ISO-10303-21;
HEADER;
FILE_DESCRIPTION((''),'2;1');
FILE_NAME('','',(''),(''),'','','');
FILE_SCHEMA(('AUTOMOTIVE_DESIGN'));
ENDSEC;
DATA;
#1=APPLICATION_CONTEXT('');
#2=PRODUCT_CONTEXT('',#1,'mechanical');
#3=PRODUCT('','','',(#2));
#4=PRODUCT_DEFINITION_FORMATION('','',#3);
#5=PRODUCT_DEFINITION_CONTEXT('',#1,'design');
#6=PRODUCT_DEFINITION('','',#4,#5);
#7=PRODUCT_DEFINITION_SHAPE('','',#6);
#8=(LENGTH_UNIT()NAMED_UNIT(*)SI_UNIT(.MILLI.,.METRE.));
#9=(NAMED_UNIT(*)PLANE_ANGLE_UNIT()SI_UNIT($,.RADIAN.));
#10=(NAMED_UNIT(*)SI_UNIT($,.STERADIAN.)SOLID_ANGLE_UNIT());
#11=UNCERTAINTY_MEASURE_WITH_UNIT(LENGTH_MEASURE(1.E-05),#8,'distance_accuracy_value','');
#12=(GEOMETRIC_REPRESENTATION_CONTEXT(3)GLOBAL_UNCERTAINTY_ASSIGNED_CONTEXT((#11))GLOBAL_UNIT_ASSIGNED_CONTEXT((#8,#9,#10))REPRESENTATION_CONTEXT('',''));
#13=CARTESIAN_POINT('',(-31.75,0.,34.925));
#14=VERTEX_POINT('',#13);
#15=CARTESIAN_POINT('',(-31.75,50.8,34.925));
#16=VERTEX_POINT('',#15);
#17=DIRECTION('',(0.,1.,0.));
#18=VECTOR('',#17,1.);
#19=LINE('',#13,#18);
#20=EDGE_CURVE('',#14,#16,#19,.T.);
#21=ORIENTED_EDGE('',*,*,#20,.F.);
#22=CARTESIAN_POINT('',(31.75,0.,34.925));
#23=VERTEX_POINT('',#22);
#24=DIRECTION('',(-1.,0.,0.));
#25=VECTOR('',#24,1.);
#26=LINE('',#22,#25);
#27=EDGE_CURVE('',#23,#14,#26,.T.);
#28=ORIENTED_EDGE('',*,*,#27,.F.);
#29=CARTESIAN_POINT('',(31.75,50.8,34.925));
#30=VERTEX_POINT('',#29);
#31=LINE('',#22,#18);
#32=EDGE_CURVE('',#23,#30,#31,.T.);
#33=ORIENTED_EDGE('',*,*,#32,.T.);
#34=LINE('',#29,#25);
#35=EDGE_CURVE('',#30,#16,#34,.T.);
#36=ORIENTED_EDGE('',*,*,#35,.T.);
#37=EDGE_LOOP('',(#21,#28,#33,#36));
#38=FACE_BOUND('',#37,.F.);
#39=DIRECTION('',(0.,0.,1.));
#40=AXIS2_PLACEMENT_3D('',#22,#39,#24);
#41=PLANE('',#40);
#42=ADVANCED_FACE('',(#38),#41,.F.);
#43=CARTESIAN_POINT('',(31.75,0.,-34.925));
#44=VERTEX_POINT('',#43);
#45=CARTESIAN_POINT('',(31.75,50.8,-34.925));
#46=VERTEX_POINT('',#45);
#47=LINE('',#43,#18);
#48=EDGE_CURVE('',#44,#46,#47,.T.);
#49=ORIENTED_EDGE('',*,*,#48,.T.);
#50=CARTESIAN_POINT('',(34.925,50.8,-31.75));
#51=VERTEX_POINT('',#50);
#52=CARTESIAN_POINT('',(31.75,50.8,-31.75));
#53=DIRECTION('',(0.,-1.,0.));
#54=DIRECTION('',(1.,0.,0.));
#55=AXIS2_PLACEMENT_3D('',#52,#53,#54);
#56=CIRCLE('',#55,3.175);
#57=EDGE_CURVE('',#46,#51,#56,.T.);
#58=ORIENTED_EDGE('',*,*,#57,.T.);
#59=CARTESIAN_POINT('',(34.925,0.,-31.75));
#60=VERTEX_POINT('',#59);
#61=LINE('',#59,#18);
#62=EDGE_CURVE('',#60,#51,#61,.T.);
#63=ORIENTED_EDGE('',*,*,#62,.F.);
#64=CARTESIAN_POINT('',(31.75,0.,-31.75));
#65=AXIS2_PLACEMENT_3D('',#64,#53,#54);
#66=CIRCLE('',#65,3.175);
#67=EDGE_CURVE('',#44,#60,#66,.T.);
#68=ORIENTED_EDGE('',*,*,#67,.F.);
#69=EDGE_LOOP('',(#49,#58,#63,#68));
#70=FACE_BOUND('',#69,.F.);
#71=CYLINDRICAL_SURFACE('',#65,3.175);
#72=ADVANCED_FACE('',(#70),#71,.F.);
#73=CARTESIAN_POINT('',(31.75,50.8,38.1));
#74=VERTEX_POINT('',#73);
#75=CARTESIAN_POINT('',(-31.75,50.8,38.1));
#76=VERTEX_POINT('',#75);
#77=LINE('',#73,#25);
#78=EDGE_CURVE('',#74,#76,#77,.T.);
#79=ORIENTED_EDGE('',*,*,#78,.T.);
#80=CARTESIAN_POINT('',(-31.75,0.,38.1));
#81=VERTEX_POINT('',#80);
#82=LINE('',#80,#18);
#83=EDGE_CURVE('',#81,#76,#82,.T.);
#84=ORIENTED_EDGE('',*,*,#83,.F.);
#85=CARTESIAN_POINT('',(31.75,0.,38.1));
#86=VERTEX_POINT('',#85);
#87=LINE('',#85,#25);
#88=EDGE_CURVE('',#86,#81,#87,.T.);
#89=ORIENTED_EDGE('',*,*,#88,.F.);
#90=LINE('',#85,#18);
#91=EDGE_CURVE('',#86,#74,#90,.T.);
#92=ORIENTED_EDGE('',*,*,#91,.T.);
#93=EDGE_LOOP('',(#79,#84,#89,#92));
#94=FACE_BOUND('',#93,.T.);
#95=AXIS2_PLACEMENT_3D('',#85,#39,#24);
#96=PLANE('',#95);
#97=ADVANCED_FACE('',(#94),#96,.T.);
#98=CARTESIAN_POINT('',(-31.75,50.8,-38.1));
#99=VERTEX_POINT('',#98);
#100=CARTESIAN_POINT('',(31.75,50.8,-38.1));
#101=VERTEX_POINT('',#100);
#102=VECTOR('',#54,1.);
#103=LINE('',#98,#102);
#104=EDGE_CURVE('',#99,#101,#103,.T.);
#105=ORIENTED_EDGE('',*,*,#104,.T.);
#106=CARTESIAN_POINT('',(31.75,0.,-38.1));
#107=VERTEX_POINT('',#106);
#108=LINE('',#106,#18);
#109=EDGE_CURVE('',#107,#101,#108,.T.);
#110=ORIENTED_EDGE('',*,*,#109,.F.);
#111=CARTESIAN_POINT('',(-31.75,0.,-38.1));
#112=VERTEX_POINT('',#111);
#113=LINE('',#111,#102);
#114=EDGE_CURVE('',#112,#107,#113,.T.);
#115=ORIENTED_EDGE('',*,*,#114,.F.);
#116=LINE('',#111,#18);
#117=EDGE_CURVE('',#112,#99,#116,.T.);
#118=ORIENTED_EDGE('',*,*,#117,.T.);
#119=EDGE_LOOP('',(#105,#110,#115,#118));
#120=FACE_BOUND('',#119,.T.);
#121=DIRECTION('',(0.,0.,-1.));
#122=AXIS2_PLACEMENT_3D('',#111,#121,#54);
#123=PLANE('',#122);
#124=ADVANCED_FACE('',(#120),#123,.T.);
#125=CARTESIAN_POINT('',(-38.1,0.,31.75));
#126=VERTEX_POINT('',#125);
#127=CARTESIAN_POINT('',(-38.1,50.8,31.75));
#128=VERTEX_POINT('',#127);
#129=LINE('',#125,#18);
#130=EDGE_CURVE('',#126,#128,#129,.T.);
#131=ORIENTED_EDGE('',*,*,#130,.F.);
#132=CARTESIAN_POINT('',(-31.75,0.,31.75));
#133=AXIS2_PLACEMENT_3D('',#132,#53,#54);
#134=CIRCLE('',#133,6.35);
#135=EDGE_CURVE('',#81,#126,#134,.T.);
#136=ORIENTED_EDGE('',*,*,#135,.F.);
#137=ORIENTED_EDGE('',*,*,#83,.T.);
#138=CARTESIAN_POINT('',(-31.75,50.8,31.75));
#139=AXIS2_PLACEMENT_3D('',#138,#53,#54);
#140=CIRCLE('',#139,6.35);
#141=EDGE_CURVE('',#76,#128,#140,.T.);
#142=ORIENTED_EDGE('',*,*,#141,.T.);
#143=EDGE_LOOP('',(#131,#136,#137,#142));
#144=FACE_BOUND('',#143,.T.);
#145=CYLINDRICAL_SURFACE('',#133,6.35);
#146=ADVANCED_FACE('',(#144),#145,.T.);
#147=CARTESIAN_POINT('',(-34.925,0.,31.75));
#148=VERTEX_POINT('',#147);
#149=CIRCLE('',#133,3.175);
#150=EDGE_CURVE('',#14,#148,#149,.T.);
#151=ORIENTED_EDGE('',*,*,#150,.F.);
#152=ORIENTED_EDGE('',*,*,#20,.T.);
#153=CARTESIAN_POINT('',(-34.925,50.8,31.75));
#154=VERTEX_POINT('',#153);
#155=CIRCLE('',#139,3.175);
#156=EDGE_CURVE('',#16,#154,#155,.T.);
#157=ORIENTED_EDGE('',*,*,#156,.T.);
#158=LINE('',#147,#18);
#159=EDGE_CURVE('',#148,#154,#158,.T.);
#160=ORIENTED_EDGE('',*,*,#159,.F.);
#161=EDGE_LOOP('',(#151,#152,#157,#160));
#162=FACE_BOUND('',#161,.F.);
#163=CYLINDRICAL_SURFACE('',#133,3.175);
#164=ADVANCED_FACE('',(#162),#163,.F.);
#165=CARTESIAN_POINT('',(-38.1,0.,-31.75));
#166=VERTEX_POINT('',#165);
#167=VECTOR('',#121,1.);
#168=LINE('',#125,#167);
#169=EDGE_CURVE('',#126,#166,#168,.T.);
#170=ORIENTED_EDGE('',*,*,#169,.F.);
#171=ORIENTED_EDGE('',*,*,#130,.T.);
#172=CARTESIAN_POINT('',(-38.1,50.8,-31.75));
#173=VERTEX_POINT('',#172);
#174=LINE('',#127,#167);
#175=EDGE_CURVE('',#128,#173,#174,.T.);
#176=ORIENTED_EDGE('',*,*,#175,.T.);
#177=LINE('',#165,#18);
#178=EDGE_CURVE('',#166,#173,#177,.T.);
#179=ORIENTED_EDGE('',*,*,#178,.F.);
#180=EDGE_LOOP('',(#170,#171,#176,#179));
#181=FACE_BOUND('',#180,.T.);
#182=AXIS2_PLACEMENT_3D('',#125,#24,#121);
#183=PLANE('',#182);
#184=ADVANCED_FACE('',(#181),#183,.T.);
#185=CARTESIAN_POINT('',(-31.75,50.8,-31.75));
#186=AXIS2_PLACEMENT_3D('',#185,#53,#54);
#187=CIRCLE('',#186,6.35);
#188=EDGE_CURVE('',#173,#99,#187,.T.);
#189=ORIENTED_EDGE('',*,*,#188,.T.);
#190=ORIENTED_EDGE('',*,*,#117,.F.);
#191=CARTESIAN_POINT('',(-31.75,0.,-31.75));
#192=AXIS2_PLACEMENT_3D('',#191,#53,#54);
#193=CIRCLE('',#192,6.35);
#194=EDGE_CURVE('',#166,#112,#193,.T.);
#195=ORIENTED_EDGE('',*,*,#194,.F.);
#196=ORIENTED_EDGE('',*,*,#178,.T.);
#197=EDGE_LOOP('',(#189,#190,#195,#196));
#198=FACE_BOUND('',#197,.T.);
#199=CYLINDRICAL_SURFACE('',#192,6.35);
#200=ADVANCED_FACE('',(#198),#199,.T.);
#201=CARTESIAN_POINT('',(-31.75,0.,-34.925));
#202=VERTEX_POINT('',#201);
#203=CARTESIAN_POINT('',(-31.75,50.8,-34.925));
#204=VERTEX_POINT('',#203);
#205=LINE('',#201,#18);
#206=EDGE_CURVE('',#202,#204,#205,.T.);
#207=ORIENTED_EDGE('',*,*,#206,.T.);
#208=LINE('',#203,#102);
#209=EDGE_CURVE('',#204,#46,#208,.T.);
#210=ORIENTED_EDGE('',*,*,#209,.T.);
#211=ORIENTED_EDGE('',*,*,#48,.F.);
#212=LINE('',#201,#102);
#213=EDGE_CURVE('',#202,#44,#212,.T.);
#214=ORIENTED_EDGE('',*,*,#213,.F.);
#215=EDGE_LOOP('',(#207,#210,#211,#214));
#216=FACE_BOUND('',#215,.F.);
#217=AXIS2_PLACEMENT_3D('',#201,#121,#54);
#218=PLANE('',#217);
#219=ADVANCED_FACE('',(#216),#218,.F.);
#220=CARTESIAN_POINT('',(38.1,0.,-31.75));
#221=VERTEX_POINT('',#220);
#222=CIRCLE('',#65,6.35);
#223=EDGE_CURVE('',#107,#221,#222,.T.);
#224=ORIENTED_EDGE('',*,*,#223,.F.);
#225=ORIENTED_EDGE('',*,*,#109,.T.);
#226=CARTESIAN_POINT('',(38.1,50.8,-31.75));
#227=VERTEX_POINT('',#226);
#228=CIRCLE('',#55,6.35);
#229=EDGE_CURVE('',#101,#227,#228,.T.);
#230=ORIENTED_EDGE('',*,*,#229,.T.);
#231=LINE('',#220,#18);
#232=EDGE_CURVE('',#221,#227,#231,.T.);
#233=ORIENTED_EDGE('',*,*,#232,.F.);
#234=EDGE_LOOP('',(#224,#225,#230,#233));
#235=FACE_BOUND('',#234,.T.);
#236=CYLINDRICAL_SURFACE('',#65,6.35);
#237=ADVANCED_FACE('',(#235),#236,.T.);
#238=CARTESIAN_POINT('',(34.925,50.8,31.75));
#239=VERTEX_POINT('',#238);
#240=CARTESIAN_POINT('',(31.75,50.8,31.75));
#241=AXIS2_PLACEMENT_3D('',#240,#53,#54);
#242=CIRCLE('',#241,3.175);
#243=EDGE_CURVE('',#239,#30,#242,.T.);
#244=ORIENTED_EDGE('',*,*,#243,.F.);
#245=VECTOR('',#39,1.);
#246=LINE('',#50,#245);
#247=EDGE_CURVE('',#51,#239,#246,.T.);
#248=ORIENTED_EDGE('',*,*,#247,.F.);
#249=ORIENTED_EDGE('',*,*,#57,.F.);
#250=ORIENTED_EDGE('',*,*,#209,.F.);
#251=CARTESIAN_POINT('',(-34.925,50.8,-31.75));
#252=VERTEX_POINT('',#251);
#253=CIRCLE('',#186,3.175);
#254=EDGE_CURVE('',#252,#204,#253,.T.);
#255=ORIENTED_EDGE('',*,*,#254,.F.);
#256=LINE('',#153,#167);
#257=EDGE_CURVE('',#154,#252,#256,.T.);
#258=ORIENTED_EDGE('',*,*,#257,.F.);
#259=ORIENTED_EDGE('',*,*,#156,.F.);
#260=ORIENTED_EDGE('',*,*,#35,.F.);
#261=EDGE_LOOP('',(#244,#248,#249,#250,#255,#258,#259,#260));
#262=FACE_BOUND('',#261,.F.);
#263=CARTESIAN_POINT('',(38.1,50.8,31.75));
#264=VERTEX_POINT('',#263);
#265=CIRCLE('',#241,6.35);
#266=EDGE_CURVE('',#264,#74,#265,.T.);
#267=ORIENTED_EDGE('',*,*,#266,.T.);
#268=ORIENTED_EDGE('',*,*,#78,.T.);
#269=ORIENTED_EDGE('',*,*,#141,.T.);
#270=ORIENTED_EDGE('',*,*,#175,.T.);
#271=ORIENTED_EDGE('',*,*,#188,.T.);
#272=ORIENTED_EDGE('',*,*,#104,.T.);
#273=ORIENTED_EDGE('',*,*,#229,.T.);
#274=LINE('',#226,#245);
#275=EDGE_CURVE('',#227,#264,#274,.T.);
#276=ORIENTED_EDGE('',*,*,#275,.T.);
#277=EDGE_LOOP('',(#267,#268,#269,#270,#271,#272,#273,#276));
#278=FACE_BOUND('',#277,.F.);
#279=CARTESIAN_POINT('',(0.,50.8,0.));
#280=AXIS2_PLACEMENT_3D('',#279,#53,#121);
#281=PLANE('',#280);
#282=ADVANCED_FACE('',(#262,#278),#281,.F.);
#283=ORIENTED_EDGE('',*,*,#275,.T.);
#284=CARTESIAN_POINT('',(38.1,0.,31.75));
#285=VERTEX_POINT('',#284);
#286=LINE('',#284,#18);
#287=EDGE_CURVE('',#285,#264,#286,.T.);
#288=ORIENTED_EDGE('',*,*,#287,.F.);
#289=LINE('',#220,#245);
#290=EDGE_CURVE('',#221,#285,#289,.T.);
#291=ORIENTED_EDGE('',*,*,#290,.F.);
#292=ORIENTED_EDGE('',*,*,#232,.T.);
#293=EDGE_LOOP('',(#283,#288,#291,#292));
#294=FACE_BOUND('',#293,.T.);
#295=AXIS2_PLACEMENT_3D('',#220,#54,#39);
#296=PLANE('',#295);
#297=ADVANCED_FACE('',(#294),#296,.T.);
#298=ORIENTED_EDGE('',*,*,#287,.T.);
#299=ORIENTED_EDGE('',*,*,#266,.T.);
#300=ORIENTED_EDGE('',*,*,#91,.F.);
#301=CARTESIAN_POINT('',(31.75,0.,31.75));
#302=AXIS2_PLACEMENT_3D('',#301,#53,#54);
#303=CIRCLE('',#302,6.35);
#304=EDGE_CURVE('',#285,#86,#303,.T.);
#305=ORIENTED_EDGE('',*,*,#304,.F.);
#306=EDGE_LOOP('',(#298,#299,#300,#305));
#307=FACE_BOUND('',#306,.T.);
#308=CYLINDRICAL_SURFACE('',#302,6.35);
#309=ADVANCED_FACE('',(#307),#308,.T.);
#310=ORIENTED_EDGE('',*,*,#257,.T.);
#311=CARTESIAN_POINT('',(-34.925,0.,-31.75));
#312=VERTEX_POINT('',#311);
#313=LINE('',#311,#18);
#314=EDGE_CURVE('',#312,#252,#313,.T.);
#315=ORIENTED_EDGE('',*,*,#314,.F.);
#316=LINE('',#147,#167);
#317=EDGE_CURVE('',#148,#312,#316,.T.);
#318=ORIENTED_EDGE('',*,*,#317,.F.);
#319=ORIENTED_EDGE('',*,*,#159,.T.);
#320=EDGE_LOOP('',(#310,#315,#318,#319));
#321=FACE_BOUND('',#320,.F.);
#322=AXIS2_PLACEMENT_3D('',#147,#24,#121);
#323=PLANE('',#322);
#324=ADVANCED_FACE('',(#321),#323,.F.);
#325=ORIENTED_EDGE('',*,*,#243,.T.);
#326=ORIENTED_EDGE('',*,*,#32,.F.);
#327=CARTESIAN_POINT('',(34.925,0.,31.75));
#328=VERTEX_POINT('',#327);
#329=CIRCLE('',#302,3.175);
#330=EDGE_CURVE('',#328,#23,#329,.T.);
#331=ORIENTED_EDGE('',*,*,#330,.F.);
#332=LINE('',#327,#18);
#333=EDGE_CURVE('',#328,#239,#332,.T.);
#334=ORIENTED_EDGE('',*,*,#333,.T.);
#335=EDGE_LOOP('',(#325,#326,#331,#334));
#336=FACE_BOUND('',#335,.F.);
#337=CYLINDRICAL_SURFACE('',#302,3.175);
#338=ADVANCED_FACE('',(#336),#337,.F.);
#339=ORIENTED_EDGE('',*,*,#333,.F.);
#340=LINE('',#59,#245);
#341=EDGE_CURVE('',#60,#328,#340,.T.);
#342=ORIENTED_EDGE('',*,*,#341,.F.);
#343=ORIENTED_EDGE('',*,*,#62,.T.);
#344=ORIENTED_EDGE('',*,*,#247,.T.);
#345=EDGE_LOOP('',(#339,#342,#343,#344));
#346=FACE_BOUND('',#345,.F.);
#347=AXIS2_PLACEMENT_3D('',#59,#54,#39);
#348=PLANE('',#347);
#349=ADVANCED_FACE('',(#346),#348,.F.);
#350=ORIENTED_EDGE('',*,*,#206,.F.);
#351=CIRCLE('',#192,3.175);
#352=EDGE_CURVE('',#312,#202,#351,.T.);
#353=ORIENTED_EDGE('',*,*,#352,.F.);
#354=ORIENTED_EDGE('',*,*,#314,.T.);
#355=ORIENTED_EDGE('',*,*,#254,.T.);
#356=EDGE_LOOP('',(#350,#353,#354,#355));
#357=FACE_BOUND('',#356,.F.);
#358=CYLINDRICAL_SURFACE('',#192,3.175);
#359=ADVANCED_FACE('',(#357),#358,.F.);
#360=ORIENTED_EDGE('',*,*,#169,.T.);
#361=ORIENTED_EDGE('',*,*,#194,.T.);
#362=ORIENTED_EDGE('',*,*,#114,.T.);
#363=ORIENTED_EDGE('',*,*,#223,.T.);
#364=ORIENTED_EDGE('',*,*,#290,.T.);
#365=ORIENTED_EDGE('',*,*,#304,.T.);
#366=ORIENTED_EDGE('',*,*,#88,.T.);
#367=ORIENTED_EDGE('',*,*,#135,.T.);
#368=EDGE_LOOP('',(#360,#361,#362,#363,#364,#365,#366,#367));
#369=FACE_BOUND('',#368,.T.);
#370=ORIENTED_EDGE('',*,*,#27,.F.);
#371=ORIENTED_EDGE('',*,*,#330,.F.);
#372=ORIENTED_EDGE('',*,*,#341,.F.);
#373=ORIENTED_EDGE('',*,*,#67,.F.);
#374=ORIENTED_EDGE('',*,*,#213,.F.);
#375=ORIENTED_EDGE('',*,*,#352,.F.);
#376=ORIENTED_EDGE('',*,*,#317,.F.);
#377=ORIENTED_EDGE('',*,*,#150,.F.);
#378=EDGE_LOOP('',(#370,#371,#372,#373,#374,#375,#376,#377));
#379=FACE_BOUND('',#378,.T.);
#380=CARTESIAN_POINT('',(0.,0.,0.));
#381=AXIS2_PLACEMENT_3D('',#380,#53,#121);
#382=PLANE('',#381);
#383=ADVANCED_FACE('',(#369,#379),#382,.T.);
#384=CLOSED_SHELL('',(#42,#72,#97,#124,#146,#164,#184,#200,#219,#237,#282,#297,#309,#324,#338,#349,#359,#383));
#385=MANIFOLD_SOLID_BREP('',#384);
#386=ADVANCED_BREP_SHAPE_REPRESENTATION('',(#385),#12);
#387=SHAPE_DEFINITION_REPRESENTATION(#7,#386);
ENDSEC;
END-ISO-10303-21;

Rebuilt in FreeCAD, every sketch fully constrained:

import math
import FreeCAD as App
import Part
import Sketcher
from FreeCAD import Vector
Q = App.Units.Quantity

doc = App.newDocument("Part")
body = doc.addObject("PartDesign::Body", "Body")

# Sketch on XZ plane
sketch1 = body.newObject("Sketcher::SketchObject", "Sketch")
sketch1.AttachmentSupport = (doc.getObject("XZ_Plane"), [""])
sketch1.MapMode = "FlatFace"
sketch1.addGeometry(Part.LineSegment(Vector(-38.1, 31.8, 0), Vector(-38.1, -31.8, 0)), False)
sketch1.addGeometry(Part.ArcOfCircle(Part.Circle(Vector(-31.8, -31.8, 0), Vector(0, 0, 1), 6.4), math.radians(180), math.radians(270)), False)
sketch1.addGeometry(Part.LineSegment(Vector(-31.8, -38.1, 0), Vector(31.8, -38.1, 0)), False)
sketch1.addGeometry(Part.ArcOfCircle(Part.Circle(Vector(31.8, -31.8, 0), Vector(0, 0, 1), 6.4), math.radians(-90), math.radians(0)), False)
sketch1.addGeometry(Part.LineSegment(Vector(38.1, -31.8, 0), Vector(38.1, 31.8, 0)), False)
sketch1.addGeometry(Part.ArcOfCircle(Part.Circle(Vector(31.8, 31.8, 0), Vector(0, 0, 1), 6.4), math.radians(0), math.radians(90)), False)
sketch1.addGeometry(Part.LineSegment(Vector(31.8, 38.1, 0), Vector(-31.8, 38.1, 0)), False)
sketch1.addGeometry(Part.ArcOfCircle(Part.Circle(Vector(-31.8, 31.8, 0), Vector(0, 0, 1), 6.4), math.radians(90), math.radians(180)), False)
sketch1.addGeometry(Part.LineSegment(Vector(-34.9, -31.8, 0), Vector(-34.9, 31.8, 0)), False)
sketch1.addGeometry(Part.ArcOfCircle(Part.Circle(Vector(-31.8, 31.8, 0), Vector(0, 0, 1), 3.2), math.radians(90), math.radians(180)), False)
sketch1.addGeometry(Part.LineSegment(Vector(-31.8, 34.9, 0), Vector(31.8, 34.9, 0)), False)
sketch1.addGeometry(Part.ArcOfCircle(Part.Circle(Vector(31.8, 31.8, 0), Vector(0, 0, 1), 3.2), math.radians(0), math.radians(90)), False)
sketch1.addGeometry(Part.LineSegment(Vector(34.9, 31.8, 0), Vector(34.9, -31.8, 0)), False)
sketch1.addGeometry(Part.ArcOfCircle(Part.Circle(Vector(31.8, -31.8, 0), Vector(0, 0, 1), 3.2), math.radians(-90), math.radians(0)), False)
sketch1.addGeometry(Part.LineSegment(Vector(31.8, -34.9, 0), Vector(-31.8, -34.9, 0)), False)
sketch1.addGeometry(Part.ArcOfCircle(Part.Circle(Vector(-31.8, -31.8, 0), Vector(0, 0, 1), 3.2), math.radians(180), math.radians(270)), False)
sketch1.addConstraint(Sketcher.Constraint("Tangent", 0, 2, 1, 1))
sketch1.addConstraint(Sketcher.Constraint("Tangent", 1, 2, 2, 1))
sketch1.addConstraint(Sketcher.Constraint("Tangent", 2, 2, 3, 1))
sketch1.addConstraint(Sketcher.Constraint("Tangent", 3, 2, 4, 1))
sketch1.addConstraint(Sketcher.Constraint("Tangent", 4, 2, 5, 1))
sketch1.addConstraint(Sketcher.Constraint("Tangent", 5, 2, 6, 1))
sketch1.addConstraint(Sketcher.Constraint("Tangent", 6, 2, 7, 1))
sketch1.addConstraint(Sketcher.Constraint("Tangent", 7, 2, 0, 1))
sketch1.addConstraint(Sketcher.Constraint("Tangent", 8, 2, 9, 2))
sketch1.addConstraint(Sketcher.Constraint("Tangent", 9, 1, 10, 1))
sketch1.addConstraint(Sketcher.Constraint("Tangent", 10, 2, 11, 2))
sketch1.addConstraint(Sketcher.Constraint("Tangent", 11, 1, 12, 1))
sketch1.addConstraint(Sketcher.Constraint("Tangent", 12, 2, 13, 2))
sketch1.addConstraint(Sketcher.Constraint("Tangent", 13, 1, 14, 1))
sketch1.addConstraint(Sketcher.Constraint("Tangent", 14, 2, 15, 2))
sketch1.addConstraint(Sketcher.Constraint("Tangent", 15, 1, 8, 1))
sketch1.addConstraint(Sketcher.Constraint("Vertical", 0))
sketch1.addConstraint(Sketcher.Constraint("Horizontal", 2))
sketch1.addConstraint(Sketcher.Constraint("Vertical", 4))
sketch1.addConstraint(Sketcher.Constraint("Horizontal", 6))
sketch1.addConstraint(Sketcher.Constraint("Vertical", 8))
sketch1.addConstraint(Sketcher.Constraint("Horizontal", 10))
sketch1.addConstraint(Sketcher.Constraint("Vertical", 12))
sketch1.addConstraint(Sketcher.Constraint("Horizontal", 14))
sketch1.addConstraint(Sketcher.Constraint("Coincident", 9, 3, 7, 3))
sketch1.addConstraint(Sketcher.Constraint("Coincident", 11, 3, 5, 3))
sketch1.addConstraint(Sketcher.Constraint("Coincident", 13, 3, 3, 3))
sketch1.addConstraint(Sketcher.Constraint("Equal", 1, 3))
sketch1.addConstraint(Sketcher.Constraint("Equal", 3, 5))
sketch1.addConstraint(Sketcher.Constraint("Equal", 5, 7))
sketch1.addConstraint(Sketcher.Constraint("Equal", 13, 15))
sketch1.addConstraint(Sketcher.Constraint("Symmetric", 1, 3, 5, 3, -1, 1))
sketch1.addConstraint(Sketcher.Constraint("Equal", 14, 0))
sketch1.addConstraint(Sketcher.Constraint("Radius", 1, Q("0.25 in")))
sketch1.addConstraint(Sketcher.Constraint("DistanceX", 2, 1, 2, 2, Q("2.5 in")))
sketch1.addConstraint(Sketcher.Constraint("Radius", 9, Q("0.125 in")))
pad1 = body.newObject("PartDesign::Pad", "Pad")
pad1.Profile = sketch1
pad1.Length = Q("2 in")
pad1.Reversed = True

doc.recompute()
